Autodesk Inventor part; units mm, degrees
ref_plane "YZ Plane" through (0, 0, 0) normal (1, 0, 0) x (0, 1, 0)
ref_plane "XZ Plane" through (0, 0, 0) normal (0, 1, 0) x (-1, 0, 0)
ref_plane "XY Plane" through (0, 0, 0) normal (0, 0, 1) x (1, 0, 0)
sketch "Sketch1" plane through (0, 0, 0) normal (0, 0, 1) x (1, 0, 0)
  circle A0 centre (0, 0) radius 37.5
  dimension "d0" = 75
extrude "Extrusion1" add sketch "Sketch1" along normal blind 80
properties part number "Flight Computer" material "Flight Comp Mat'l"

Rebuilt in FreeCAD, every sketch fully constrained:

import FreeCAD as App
import Part
import Sketcher
from FreeCAD import Vector
Q = App.Units.Quantity

doc = App.newDocument("Part")
params = doc.addObject("Spreadsheet::Sheet", "Params")
for row, (alias, value) in enumerate([
    ("sketch1_diameter", "75 mm"),
    ("pad1_length", "80 mm"),
], start=1):
    params.set(f"A{row}", alias)
    params.set(f"B{row}", "=" + value)
    params.setAlias(f"B{row}", alias)

body = doc.addObject("PartDesign::Body", "Body")

sketch1 = body.newObject("Sketcher::SketchObject", "Sketch")
sketch1.AttachmentSupport = (doc.getObject("XY_Plane"), [""])
sketch1.MapMode = "FlatFace"
sketch1.addGeometry(Part.Circle(Vector(0, 0, 0), Vector(0, 0, 1), 38), False)
sketch1.addConstraint(Sketcher.Constraint("Coincident", 0, 3, -1, 1))
sketch1.addConstraint(Sketcher.Constraint("Diameter", 0, Q("75 mm")))
sketch1.setExpression("Constraints[1]", "Params.sketch1_diameter")
pad1 = body.newObject("PartDesign::Pad", "Pad")
pad1.Profile = sketch1
pad1.setExpression("Length", "Params.pad1_length")

doc.recompute()
